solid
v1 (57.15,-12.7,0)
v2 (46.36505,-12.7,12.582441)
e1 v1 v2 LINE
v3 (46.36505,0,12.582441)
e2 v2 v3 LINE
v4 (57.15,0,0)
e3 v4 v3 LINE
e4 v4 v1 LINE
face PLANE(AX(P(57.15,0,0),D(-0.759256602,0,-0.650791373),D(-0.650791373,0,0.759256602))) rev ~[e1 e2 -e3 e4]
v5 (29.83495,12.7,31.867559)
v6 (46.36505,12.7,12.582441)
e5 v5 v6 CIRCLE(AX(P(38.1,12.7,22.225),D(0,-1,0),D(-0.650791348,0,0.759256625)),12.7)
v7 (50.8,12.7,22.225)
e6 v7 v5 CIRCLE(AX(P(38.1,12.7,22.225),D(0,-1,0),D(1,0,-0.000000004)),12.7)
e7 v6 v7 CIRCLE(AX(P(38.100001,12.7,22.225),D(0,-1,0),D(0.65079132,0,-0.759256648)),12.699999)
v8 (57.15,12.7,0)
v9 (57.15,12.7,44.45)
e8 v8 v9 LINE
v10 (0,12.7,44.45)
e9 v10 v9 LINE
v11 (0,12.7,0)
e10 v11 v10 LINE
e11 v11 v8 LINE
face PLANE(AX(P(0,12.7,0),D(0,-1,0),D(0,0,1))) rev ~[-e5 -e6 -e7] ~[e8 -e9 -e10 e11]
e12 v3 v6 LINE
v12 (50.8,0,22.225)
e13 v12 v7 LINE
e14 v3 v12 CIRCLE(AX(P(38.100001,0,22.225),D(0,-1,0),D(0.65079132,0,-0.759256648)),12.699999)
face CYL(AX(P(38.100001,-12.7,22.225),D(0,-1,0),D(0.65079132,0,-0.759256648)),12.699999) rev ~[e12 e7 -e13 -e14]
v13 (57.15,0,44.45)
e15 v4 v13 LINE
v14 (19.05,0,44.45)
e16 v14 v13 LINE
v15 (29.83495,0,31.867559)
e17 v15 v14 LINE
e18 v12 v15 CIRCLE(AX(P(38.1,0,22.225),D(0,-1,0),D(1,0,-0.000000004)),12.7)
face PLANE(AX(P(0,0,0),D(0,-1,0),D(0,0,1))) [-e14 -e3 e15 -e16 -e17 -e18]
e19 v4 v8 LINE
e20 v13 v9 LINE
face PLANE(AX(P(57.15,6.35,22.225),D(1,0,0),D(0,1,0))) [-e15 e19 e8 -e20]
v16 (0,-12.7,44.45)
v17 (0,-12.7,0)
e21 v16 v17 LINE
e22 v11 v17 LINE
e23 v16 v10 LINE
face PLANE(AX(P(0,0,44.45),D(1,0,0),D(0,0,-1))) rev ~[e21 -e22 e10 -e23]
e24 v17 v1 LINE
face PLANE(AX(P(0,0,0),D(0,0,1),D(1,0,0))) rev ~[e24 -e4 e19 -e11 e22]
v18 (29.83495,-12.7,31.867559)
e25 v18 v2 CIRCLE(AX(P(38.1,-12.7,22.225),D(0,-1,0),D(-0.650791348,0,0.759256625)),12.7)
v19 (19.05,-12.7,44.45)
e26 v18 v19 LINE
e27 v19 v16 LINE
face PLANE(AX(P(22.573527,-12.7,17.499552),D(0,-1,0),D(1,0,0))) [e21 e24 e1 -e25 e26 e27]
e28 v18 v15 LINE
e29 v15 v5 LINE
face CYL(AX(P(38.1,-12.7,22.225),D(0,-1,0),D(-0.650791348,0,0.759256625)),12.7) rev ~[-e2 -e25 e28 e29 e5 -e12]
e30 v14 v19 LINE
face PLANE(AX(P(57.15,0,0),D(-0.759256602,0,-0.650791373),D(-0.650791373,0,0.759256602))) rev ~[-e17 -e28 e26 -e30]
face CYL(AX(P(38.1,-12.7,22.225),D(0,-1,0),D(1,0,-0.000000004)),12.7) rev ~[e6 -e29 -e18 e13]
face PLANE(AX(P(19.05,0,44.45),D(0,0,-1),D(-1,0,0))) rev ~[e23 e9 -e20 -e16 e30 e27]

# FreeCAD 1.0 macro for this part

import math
import FreeCAD as App
import Part
import Sketcher
Q = App.Units.Quantity


def add_polygon(sketch, points):
    """Adds a closed chain of lines whose ends are joined by coincident constraints."""
    first, n = sketch.GeometryCount, len(points)
    for a, b in zip(points, points[1:] + points[:1]):
        sketch.addGeometry(Part.LineSegment(App.Vector(*a, 0), App.Vector(*b, 0)), False)
    for i in range(n):
        sketch.addConstraint(Sketcher.Constraint("Coincident", first + i, 2, first + (i + 1) % n, 1))

doc = App.newDocument("Part")
body = doc.addObject("PartDesign::Body", "Body")

# Sketch on YZ plane
sketch1 = doc.addObject("Sketcher::SketchObject", "Sketch")
body.addObject(sketch1)
sketch1.AttachmentSupport = (doc.YZ_Plane, [""])
sketch1.MapMode = "FlatFace"
add_polygon(sketch1, [(0, 44), (0, 0), (13, 0), (13, 44)])  # lines 0-3
sketch1.addConstraint(Sketcher.Constraint("Vertical", 0))
sketch1.addConstraint(Sketcher.Constraint("Horizontal", 1))
sketch1.addConstraint(Sketcher.Constraint("Vertical", 2))
sketch1.addConstraint(Sketcher.Constraint("Horizontal", 3))
sketch1.addConstraint(Sketcher.Constraint("Coincident", 0, 2, -1, 1))
sketch1.addConstraint(Sketcher.Constraint("DistanceX", 1, 1, 1, 2, Q("0.5 in")))
sketch1.addConstraint(Sketcher.Constraint("DistanceY", 0, 2, 0, 1, Q("1.75 in")))
pad1 = doc.addObject("PartDesign::Pad", "Pad")
body.addObject(pad1)
pad1.Profile = sketch1
pad1.Length = Q("2.25 in")

# Sketch on XZ plane
sketch2 = doc.addObject("Sketcher::SketchObject", "Sketch001")
body.addObject(sketch2)
sketch2.AttachmentSupport = (doc.XZ_Plane, [""])
sketch2.MapMode = "FlatFace"
add_polygon(sketch2, [(0, 44), (0, 0), (57, 0), (19, 44)])  # lines 0-3
sketch2.addConstraint(Sketcher.Constraint("Vertical", 0))
sketch2.addConstraint(Sketcher.Constraint("Horizontal", 1))
sketch2.addConstraint(Sketcher.Constraint("Horizontal", 3))
sketch2.addConstraint(Sketcher.Constraint("Coincident", 0, 2, -1, 1))
sketch2.addConstraint(Sketcher.Constraint("DistanceX", 1, 1, 1, 2, Q("2.25 in")))
sketch2.addConstraint(Sketcher.Constraint("DistanceX", 3, 2, 3, 1, Q("0.75 in")))
sketch2.addConstraint(Sketcher.Constraint("DistanceY", 0, 2, 0, 1, Q("1.75 in")))
pad2 = doc.addObject("PartDesign::Pad", "Pad001")
body.addObject(pad2)
pad2.Profile = sketch2
pad2.Length = Q("0.5 in")

# Sketch on XZ plane
sketch3 = doc.addObject("Sketcher::SketchObject", "Sketch002")
body.addObject(sketch3)
sketch3.AttachmentSupport = (doc.XZ_Plane, [""])
sketch3.MapMode = "FlatFace"
sketch3.AttachmentOffset = App.Placement(App.Vector(0, 0, 0.5 * 25.4), App.Rotation())
sketch3.addGeometry(Part.ArcOfCircle(Part.Circle(App.Vector(38, 22, 0), App.Vector(0, 0, 1), 13), math.radians(131), math.radians(311)), False)
sketch3.addGeometry(Part.ArcOfCircle(Part.Circle(App.Vector(38, 22, 0), App.Vector(0, 0, 1), 13), math.radians(-49), math.radians(0)), False)
sketch3.addGeometry(Part.ArcOfCircle(Part.Circle(App.Vector(38, 22, 0), App.Vector(0, 0, 1), 13), math.radians(0), math.radians(131)), False)
sketch3.addConstraint(Sketcher.Constraint("Tangent", 0, 2, 1, 1))
sketch3.addConstraint(Sketcher.Constraint("Tangent", 1, 2, 2, 1))
sketch3.addConstraint(Sketcher.Constraint("Tangent", 2, 2, 0, 1))
sketch3.addConstraint(Sketcher.Constraint("Horizontal", 2, 3, 1, 2))
sketch3.addConstraint(Sketcher.Constraint("Radius", 0, Q("0.5 in")))
sketch3.addConstraint(Sketcher.Constraint("DistanceX", -1, 1, 1, 2, Q("2 in")))
sketch3.addConstraint(Sketcher.Constraint("DistanceY", -1, 1, 0, 3, Q("0.875 in")))
sketch3.addConstraint(Sketcher.Constraint("DistanceX", 2, 2, 0, 2, Q("16.5301 mm")))
sketch3.addConstraint(Sketcher.Constraint("DistanceX", -1, 1, 0, 2, Q("46.36505 mm")))
pocket1 = doc.addObject("PartDesign::Pocket", "Pocket")
body.addObject(pocket1)
pocket1.Profile = sketch3
pocket1.Length = Q("1 in")

doc.recompute()
